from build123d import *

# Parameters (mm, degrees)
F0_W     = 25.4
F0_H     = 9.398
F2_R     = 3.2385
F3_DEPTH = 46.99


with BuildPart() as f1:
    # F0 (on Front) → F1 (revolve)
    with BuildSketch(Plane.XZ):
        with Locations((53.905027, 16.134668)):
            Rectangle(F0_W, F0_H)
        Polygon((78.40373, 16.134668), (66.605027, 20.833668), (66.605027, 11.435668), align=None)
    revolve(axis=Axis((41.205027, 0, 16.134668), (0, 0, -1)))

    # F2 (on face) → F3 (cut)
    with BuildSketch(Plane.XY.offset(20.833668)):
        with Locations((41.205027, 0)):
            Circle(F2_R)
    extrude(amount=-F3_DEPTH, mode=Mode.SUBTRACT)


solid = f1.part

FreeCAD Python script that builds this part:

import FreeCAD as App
import Part
import Sketcher
Q = App.Units.Quantity


def add_polygon(sketch, points):
    """Adds a closed chain of lines whose ends are joined by coincident constraints."""
    first, n = sketch.GeometryCount, len(points)
    for a, b in zip(points, points[1:] + points[:1]):
        sketch.addGeometry(Part.LineSegment(App.Vector(*a, 0), App.Vector(*b, 0)), False)
    for i in range(n):
        sketch.addConstraint(Sketcher.Constraint("Coincident", first + i, 2, first + (i + 1) % n, 1))

doc = App.newDocument("Part")
body = doc.addObject("PartDesign::Body", "Body")

# Sketch on XZ plane
sketch1 = body.newObject("Sketcher::SketchObject", "Sketch")
sketch1.AttachmentSupport = (doc.getObject("XZ_Plane"), [""])
sketch1.MapMode = "FlatFace"
add_polygon(sketch1, [(41, 21), (41, 11), (67, 11), (78, 16), (67, 21)])  # lines 0-4
sketch1.addGeometry(Part.LineSegment(App.Vector(41, 21, 0), App.Vector(41, 11, 0)), True)  # axis
sketch1.addConstraint(Sketcher.Constraint("Vertical", 0))
sketch1.addConstraint(Sketcher.Constraint("Horizontal", 1))
sketch1.addConstraint(Sketcher.Constraint("Horizontal", 4))
sketch1.addConstraint(Sketcher.Constraint("Vertical", 5))
sketch1.addConstraint(Sketcher.Constraint("Coincident", 5, 1, 4, 2))
sketch1.addConstraint(Sketcher.Constraint("Horizontal", 1, 2, 5, 2))
sketch1.addConstraint(Sketcher.Constraint("Vertical", 1, 2, 3, 2))
sketch1.addConstraint(Sketcher.Constraint("Equal", 2, 3))
sketch1.addConstraint(Sketcher.Constraint("DistanceX", 1, 1, 1, 2, Q("1 in")))
sketch1.addConstraint(Sketcher.Constraint("Distance", 2, Q("0.5 in")))
sketch1.addConstraint(Sketcher.Constraint("DistanceY", 0, 2, 0, 1, Q("0.37 in")))
sketch1.addConstraint(Sketcher.Constraint("DistanceX", -1, 1, 2, 2, 78.40373))
sketch1.addConstraint(Sketcher.Constraint("DistanceY", -1, 1, 2, 2, 16.134668))
revolution = body.newObject("PartDesign::Revolution", "Revolution")
revolution.Profile = sketch1
revolution.ReferenceAxis = (sketch1, ["Axis0"])
revolution.Angle = 360

# Sketch on XY plane
sketch2 = body.newObject("Sketcher::SketchObject", "Sketch001")
sketch2.AttachmentSupport = (doc.getObject("XY_Plane"), [""])
sketch2.MapMode = "FlatFace"
sketch2.AttachmentOffset = App.Placement(App.Vector(0, 0, 20.833668), App.Rotation())
sketch2.addGeometry(Part.Circle(App.Vector(41.2, 0, 0), App.Vector(0, 0, 1), 3.2), False)
sketch2.addConstraint(Sketcher.Constraint("PointOnObject", 0, 3, -1))
sketch2.addConstraint(Sketcher.Constraint("Diameter", 0, Q("0.255 in")))
sketch2.addConstraint(Sketcher.Constraint("DistanceX", -1, 1, 0, 3, 41.205027))
pocket1 = body.newObject("PartDesign::Pocket", "Pocket")
pocket1.Profile = sketch2
pocket1.Length = Q("1.85 in")

doc.recompute()
